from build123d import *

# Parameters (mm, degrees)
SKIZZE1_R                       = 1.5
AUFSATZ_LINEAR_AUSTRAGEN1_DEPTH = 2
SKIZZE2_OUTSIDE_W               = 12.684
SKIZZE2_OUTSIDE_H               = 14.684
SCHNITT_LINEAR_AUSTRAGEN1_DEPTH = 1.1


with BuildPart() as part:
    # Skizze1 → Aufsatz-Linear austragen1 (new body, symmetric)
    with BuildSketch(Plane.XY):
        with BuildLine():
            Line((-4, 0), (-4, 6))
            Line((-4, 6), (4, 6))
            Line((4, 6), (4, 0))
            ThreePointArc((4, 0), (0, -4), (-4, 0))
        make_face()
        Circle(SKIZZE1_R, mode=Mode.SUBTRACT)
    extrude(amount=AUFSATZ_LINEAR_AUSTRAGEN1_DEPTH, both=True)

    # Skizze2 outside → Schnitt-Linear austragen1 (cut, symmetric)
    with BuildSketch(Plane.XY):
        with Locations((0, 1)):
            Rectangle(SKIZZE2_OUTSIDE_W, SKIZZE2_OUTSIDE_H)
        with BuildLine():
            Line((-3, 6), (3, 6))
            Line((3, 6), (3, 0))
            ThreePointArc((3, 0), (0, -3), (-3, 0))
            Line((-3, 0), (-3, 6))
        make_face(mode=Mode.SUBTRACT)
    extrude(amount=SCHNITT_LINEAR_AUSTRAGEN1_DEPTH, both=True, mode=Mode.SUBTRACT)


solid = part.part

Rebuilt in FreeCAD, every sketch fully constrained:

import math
import FreeCAD as App
import Part
import Sketcher
Q = App.Units.Quantity

doc = App.newDocument("Part")
params = doc.addObject("Spreadsheet::Sheet", "Params")
for row, (alias, value) in enumerate([
    ("sketch1_diameter", "3 mm"),
    ("sketch1_radius", "4 mm"),
    ("sketch1_height", "6 mm"),
    ("pad1_length", "4 mm"),
    ("sketch2_radius", "3 mm"),
    ("pocket1_length", "2.2 mm"),
], start=1):
    params.set(f"A{row}", alias)
    params.set(f"B{row}", "=" + value)
    params.setAlias(f"B{row}", alias)

body = doc.addObject("PartDesign::Body", "Body")

sketch1 = doc.addObject("Sketcher::SketchObject", "Sketch")
body.addObject(sketch1)
sketch1.AttachmentSupport = (doc.XY_Plane, [""])
sketch1.MapMode = "FlatFace"
sketch1.addGeometry([
    Part.LineSegment(App.Vector(-4, 6, 0), App.Vector(-4, 0, 0)),
    Part.ArcOfCircle(Part.Circle(App.Vector(0, 0, 0), App.Vector(0, 0, 1), 4), math.radians(180), math.radians(360)),
    Part.LineSegment(App.Vector(4, 0, 0), App.Vector(4, 6, 0)),
    Part.LineSegment(App.Vector(4, 6, 0), App.Vector(-4, 6, 0)),
    Part.Circle(App.Vector(0, 0, 0), App.Vector(0, 0, 1), 1.5),
], False)
sketch1.addConstraint([
    Sketcher.Constraint("Tangent", 0, 2, 1, 1),
    Sketcher.Constraint("Tangent", 1, 2, 2, 1),
    Sketcher.Constraint("Coincident", 2, 2, 3, 1),
    Sketcher.Constraint("Coincident", 3, 2, 0, 1),
    Sketcher.Constraint("Vertical", 0),
    Sketcher.Constraint("Vertical", 2),
    Sketcher.Constraint("Horizontal", 3),
    Sketcher.Constraint("Coincident", 1, 3, -1, 1),
    Sketcher.Constraint("Coincident", 4, 3, -1, 1),
    Sketcher.Constraint("Diameter", 4, Q("3 mm")),
    Sketcher.Constraint("Radius", 1, Q("4 mm")),
    Sketcher.Constraint("DistanceY", 0, 2, 0, 1, Q("6 mm")),
])
sketch1.setExpression("Constraints[9]", "Params.sketch1_diameter")
sketch1.setExpression("Constraints[10]", "Params.sketch1_radius")
sketch1.setExpression("Constraints[11]", "Params.sketch1_height")
pad1 = doc.addObject("PartDesign::Pad", "Pad")
body.addObject(pad1)
pad1.Profile = sketch1
pad1.setExpression("Length", "Params.pad1_length")
pad1.Midplane = True

sketch2 = doc.addObject("Sketcher::SketchObject", "Sketch001")
body.addObject(sketch2)
sketch2.AttachmentSupport = (doc.XY_Plane, [""])
sketch2.MapMode = "FlatFace"
sketch2.addGeometry([
    Part.LineSegment(App.Vector(-6.3, 8.3, 0), App.Vector(-6.3, -6.3, 0)),
    Part.LineSegment(App.Vector(-6.3, -6.3, 0), App.Vector(6.3, -6.3, 0)),
    Part.LineSegment(App.Vector(6.3, -6.3, 0), App.Vector(6.3, 8.3, 0)),
    Part.LineSegment(App.Vector(6.3, 8.3, 0), App.Vector(-6.3, 8.3, 0)),
    Part.LineSegment(App.Vector(-3, 0, 0), App.Vector(-3, 6, 0)),
    Part.LineSegment(App.Vector(-3, 6, 0), App.Vector(3, 6, 0)),
    Part.LineSegment(App.Vector(3, 6, 0), App.Vector(3, 0, 0)),
    Part.ArcOfCircle(Part.Circle(App.Vector(0, 0, 0), App.Vector(0, 0, 1), 3), math.radians(180), math.radians(360)),
], False)
sketch2.addConstraint([
    Sketcher.Constraint("Coincident", 0, 2, 1, 1),
    Sketcher.Constraint("Coincident", 1, 2, 2, 1),
    Sketcher.Constraint("Coincident", 2, 2, 3, 1),
    Sketcher.Constraint("Coincident", 3, 2, 0, 1),
    Sketcher.Constraint("Coincident", 4, 2, 5, 1),
    Sketcher.Constraint("Coincident", 5, 2, 6, 1),
    Sketcher.Constraint("Tangent", 6, 2, 7, 2),
    Sketcher.Constraint("Tangent", 7, 1, 4, 1),
    Sketcher.Constraint("Vertical", 0),
    Sketcher.Constraint("Horizontal", 1),
    Sketcher.Constraint("Vertical", 2),
    Sketcher.Constraint("Horizontal", 3),
    Sketcher.Constraint("Vertical", 4),
    Sketcher.Constraint("Horizontal", 5),
    Sketcher.Constraint("Vertical", 6),
    Sketcher.Constraint("Coincident", 7, 3, -1, 1),
    Sketcher.Constraint("Equal", 5, 4),
    Sketcher.Constraint("Radius", 7, Q("3 mm")),
    Sketcher.Constraint("DistanceX", 1, 1, 1, 2, Q("12.684 mm")),
    Sketcher.Constraint("DistanceY", 0, 2, 0, 1, Q("14.684 mm")),
    Sketcher.Constraint("DistanceX", 0, 2, -1, 1, Q("6.342 mm")),
    Sketcher.Constraint("DistanceY", 0, 2, -1, 1, Q("6.342 mm")),
])
sketch2.setExpression("Constraints[17]", "Params.sketch2_radius")
pocket1 = doc.addObject("PartDesign::Pocket", "Pocket")
body.addObject(pocket1)
pocket1.Profile = sketch2
pocket1.setExpression("Length", "Params.pocket1_length")
pocket1.Midplane = True

doc.recompute()
